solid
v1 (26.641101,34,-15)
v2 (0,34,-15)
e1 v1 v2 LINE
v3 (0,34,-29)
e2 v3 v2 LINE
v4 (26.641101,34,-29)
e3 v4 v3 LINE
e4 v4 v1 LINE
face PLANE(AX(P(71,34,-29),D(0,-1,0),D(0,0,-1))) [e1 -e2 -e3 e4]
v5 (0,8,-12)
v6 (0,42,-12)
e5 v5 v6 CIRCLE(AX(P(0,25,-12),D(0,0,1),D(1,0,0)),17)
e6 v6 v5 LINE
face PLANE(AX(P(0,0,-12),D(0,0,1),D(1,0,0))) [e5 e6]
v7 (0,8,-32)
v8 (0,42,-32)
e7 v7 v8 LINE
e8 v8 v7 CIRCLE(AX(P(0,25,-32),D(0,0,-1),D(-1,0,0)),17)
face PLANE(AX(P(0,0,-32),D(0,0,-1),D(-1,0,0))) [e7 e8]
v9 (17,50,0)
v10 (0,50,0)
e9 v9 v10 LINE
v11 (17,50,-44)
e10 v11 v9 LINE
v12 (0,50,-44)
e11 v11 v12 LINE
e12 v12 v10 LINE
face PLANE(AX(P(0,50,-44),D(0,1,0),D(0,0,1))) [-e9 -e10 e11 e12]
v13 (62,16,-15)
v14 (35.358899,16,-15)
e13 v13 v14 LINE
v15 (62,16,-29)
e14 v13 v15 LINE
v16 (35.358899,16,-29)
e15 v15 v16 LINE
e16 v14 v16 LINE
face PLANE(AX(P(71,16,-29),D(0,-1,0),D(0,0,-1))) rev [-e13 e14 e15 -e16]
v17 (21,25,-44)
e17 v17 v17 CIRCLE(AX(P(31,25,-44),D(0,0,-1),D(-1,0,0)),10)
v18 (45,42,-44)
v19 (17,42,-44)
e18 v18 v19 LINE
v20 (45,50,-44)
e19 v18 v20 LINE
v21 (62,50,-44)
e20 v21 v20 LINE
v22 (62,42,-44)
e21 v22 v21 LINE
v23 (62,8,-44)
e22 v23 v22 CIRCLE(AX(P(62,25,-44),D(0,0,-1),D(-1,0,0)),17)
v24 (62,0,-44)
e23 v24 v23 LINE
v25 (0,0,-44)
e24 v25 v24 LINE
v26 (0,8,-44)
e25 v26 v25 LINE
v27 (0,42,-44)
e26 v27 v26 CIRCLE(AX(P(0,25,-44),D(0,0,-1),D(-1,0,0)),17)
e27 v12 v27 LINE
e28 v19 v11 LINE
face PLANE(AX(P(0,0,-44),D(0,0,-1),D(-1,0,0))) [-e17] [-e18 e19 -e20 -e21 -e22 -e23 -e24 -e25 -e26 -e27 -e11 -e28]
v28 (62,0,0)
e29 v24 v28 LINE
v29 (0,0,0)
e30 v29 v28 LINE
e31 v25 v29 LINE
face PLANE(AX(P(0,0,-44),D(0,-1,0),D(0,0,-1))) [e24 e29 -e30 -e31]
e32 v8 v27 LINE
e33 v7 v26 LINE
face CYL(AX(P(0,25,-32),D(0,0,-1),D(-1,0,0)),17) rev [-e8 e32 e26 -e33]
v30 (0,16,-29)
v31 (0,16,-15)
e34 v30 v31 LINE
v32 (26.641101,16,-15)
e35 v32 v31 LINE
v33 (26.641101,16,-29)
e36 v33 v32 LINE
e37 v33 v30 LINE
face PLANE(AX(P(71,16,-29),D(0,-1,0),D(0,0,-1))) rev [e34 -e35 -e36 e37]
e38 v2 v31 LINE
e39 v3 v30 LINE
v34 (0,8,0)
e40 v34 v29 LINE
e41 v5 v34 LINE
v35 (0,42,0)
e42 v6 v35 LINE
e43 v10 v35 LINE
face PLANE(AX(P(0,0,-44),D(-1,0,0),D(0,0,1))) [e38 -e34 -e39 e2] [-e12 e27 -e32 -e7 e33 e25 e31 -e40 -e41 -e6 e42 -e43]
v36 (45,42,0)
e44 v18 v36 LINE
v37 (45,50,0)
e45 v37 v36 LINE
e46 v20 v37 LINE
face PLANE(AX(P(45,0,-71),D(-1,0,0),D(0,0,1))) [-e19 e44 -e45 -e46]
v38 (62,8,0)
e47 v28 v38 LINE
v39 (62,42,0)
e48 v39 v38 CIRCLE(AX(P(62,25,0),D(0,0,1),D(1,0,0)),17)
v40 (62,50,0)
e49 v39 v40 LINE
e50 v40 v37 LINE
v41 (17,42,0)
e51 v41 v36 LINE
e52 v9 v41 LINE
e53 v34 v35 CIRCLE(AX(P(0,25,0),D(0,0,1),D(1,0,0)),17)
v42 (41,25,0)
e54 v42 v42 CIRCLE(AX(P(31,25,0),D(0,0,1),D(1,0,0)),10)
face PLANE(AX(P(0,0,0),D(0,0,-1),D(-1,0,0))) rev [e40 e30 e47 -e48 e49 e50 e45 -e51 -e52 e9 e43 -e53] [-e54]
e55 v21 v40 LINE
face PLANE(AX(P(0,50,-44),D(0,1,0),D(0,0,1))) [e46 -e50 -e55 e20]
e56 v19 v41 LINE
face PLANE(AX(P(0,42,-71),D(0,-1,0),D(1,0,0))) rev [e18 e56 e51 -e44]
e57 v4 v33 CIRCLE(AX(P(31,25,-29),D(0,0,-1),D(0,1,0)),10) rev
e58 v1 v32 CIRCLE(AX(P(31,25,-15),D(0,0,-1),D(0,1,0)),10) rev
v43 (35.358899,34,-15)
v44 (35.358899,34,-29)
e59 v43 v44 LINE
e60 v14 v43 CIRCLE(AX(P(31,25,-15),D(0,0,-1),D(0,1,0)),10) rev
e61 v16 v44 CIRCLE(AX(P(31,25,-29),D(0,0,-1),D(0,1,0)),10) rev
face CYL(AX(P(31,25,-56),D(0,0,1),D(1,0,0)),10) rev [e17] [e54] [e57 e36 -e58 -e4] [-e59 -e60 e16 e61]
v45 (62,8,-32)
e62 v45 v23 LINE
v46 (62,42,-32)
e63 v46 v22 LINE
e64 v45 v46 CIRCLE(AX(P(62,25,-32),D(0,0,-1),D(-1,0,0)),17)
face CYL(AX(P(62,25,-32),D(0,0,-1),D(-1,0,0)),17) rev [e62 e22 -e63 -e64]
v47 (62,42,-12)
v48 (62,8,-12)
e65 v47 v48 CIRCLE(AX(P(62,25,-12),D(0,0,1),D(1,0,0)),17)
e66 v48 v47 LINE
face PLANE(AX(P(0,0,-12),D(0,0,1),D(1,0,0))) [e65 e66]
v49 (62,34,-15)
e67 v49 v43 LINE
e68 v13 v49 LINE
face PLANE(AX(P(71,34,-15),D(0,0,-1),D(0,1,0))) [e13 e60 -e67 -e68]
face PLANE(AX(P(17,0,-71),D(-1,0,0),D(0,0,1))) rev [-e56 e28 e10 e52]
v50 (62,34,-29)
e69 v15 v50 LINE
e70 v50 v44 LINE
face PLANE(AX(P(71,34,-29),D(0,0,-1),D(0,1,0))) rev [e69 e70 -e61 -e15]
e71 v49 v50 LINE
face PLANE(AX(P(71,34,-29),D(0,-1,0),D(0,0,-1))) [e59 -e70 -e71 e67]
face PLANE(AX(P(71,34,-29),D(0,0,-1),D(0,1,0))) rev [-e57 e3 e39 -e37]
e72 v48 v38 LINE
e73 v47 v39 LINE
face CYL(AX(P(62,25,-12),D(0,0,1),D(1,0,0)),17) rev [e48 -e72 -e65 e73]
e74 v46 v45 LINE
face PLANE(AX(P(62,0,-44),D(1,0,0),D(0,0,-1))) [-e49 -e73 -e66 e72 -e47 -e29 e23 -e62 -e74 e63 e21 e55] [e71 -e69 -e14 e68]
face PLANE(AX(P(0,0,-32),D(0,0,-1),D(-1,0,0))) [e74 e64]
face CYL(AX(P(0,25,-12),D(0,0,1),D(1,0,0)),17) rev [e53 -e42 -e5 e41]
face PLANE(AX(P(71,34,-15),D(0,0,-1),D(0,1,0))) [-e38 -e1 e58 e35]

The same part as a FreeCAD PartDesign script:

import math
import FreeCAD as App
import Part
import Sketcher

doc = App.newDocument("Part")
params = doc.addObject("Spreadsheet::Sheet", "Params")
for row, (alias, value) in enumerate([
    ("sketch1_width", "62 mm"),
    ("sketch1_height", "50 mm"),
    ("pad1_length", "44 mm"),
    ("sketch2_diameter", "20 mm"),
    ("pocket1_length", "56 mm"),
    ("sketch3_radius", "17 mm"),
    ("pocket2_length", "12 mm"),
    ("sketch4_radius", "17 mm"),
    ("pocket3_length", "12 mm"),
    ("sketch5_width", "28 mm"),
    ("sketch5_height", "8 mm"),
    ("pocket4_length", "71 mm"),
    ("sketch6_width", "18 mm"),
    ("sketch6_height", "14 mm"),
    ("pocket5_length", "71 mm"),
], start=1):
    params.set(f"A{row}", alias)
    params.set(f"B{row}", "=" + value)
    params.setAlias(f"B{row}", alias)

body = doc.addObject("PartDesign::Body", "Body")

# Sketch on XY plane
sketch1 = doc.addObject("Sketcher::SketchObject", "Sketch")
body.addObject(sketch1)
sketch1.AttachmentSupport = (doc.XY_Plane, [""])
sketch1.MapMode = "FlatFace"
sketch1.addGeometry([
    Part.LineSegment(App.Vector(0, 50, 0), App.Vector(0, 0, 0)),
    Part.LineSegment(App.Vector(0, 0, 0), App.Vector(62, 0, 0)),
    Part.LineSegment(App.Vector(62, 0, 0), App.Vector(62, 50, 0)),
    Part.LineSegment(App.Vector(62, 50, 0), App.Vector(0, 50, 0)),
], False)
sketch1.addConstraint([
    Sketcher.Constraint("Coincident", 0, 2, 1, 1),
    Sketcher.Constraint("Coincident", 1, 2, 2, 1),
    Sketcher.Constraint("Coincident", 2, 2, 3, 1),
    Sketcher.Constraint("Coincident", 3, 2, 0, 1),
    Sketcher.Constraint("Vertical", 0),
    Sketcher.Constraint("Horizontal", 1),
    Sketcher.Constraint("Vertical", 2),
    Sketcher.Constraint("Horizontal", 3),
    Sketcher.Constraint("Coincident", 0, 2, -1, 1),
    Sketcher.Constraint("DistanceX", 1, 1, 1, 2, 62.0),
    Sketcher.Constraint("DistanceY", 0, 2, 0, 1, 50.0),
])
sketch1.setExpression("Constraints[9]", "Params.sketch1_width")
sketch1.setExpression("Constraints[10]", "Params.sketch1_height")
pad1 = doc.addObject("PartDesign::Pad", "Pad")
body.addObject(pad1)
pad1.Profile = sketch1
pad1.setExpression("Length", "Params.pad1_length")
pad1.Reversed = True

# Sketch on XY plane
sketch2 = doc.addObject("Sketcher::SketchObject", "Sketch001")
body.addObject(sketch2)
sketch2.AttachmentSupport = (doc.XY_Plane, [""])
sketch2.MapMode = "FlatFace"
sketch2.addGeometry(Part.Circle(App.Vector(31, 25, 0), App.Vector(0, 0, 1), 10), False)
sketch2.addConstraint([
    Sketcher.Constraint("Diameter", 0, 20.0),
    Sketcher.Constraint("DistanceX", -1, 1, 0, 3, 31.0),
    Sketcher.Constraint("DistanceY", -1, 1, 0, 3, 25.0),
])
sketch2.setExpression("Constraints[0]", "Params.sketch2_diameter")
pocket1 = doc.addObject("PartDesign::Pocket", "Pocket")
body.addObject(pocket1)
pocket1.Profile = sketch2
pocket1.setExpression("Length", "Params.pocket1_length")

# Sketch on XY plane
sketch3 = doc.addObject("Sketcher::SketchObject", "Sketch002")
body.addObject(sketch3)
sketch3.AttachmentSupport = (doc.XY_Plane, [""])
sketch3.MapMode = "FlatFace"
sketch3.addGeometry([
    Part.ArcOfCircle(Part.Circle(App.Vector(0, 25, 0), App.Vector(0, 0, 1), 17), math.radians(0), math.radians(90)),  # 0
    Part.ArcOfCircle(Part.Circle(App.Vector(0, 25, 0), App.Vector(0, 0, 1), 17), math.radians(90), math.radians(270)),  # 1
    Part.ArcOfCircle(Part.Circle(App.Vector(0, 25, 0), App.Vector(0, 0, 1), 17), math.radians(-90), math.radians(0)),  # 2
    Part.ArcOfCircle(Part.Circle(App.Vector(62, 25, 0), App.Vector(0, 0, 1), 17), math.radians(0), math.radians(90)),  # 3
    Part.ArcOfCircle(Part.Circle(App.Vector(62, 25, 0), App.Vector(0, 0, 1), 17), math.radians(90), math.radians(270)),  # 4
    Part.ArcOfCircle(Part.Circle(App.Vector(62, 25, 0), App.Vector(0, 0, 1), 17), math.radians(-90), math.radians(0)),  # 5
], False)
sketch3.addConstraint([
    Sketcher.Constraint("Tangent", 0, 2, 1, 1),
    Sketcher.Constraint("Tangent", 1, 2, 2, 1),
    Sketcher.Constraint("Tangent", 2, 2, 0, 1),
    Sketcher.Constraint("Tangent", 3, 2, 4, 1),
    Sketcher.Constraint("Tangent", 4, 2, 5, 1),
    Sketcher.Constraint("Tangent", 5, 2, 3, 1),
    Sketcher.Constraint("Equal", 2, 3),
    Sketcher.Constraint("PointOnObject", 0, 3, -2),
    Sketcher.Constraint("PointOnObject", 0, 2, -2),
    Sketcher.Constraint("PointOnObject", 1, 2, -2),
    Sketcher.Constraint("Horizontal", 2, 3, 3, 3),
    Sketcher.Constraint("Horizontal", 5, 3, 2, 2),
    Sketcher.Constraint("Horizontal", 2, 2, 5, 2),
    Sketcher.Constraint("Vertical", 5, 3, 3, 2),
    Sketcher.Constraint("Vertical", 3, 2, 4, 2),
    Sketcher.Constraint("Radius", 0, 17.0),
    Sketcher.Constraint("DistanceY", -1, 1, 0, 3, 25.0),
    Sketcher.Constraint("DistanceX", -1, 1, 3, 3, 62.0),
])
sketch3.setExpression("Constraints[15]", "Params.sketch3_radius")
pocket2 = doc.addObject("PartDesign::Pocket", "Pocket001")
body.addObject(pocket2)
pocket2.Profile = sketch3
pocket2.setExpression("Length", "Params.pocket2_length")

# Sketch on XY plane
sketch4 = doc.addObject("Sketcher::SketchObject", "Sketch003")
body.addObject(sketch4)
sketch4.AttachmentSupport = (doc.XY_Plane, [""])
sketch4.MapMode = "FlatFace"
sketch4.AttachmentOffset = App.Placement(App.Vector(0, 0, -32), App.Rotation())
sketch4.addGeometry([
    Part.ArcOfCircle(Part.Circle(App.Vector(62, 25, 0), App.Vector(0, 0, 1), 17), math.radians(-90), math.radians(90)),  # 0
    Part.ArcOfCircle(Part.Circle(App.Vector(62, 25, 0), App.Vector(0, 0, 1), 17), math.radians(-180), math.radians(-90)),  # 1
    Part.ArcOfCircle(Part.Circle(App.Vector(62, 25, 0), App.Vector(0, 0, 1), 17), math.radians(90), math.radians(180)),  # 2
    Part.ArcOfCircle(Part.Circle(App.Vector(0, 25, 0), App.Vector(0, 0, 1), 17), math.radians(-90), math.radians(90)),  # 3
    Part.ArcOfCircle(Part.Circle(App.Vector(0, 25, 0), App.Vector(0, 0, 1), 17), math.radians(-180), math.radians(-90)),  # 4
    Part.ArcOfCircle(Part.Circle(App.Vector(0, 25, 0), App.Vector(0, 0, 1), 17), math.radians(90), math.radians(180)),  # 5
], False)
sketch4.addConstraint([
    Sketcher.Constraint("Tangent", 0, 1, 1, 2),
    Sketcher.Constraint("Tangent", 1, 1, 2, 2),
    Sketcher.Constraint("Tangent", 2, 1, 0, 2),
    Sketcher.Constraint("Tangent", 3, 1, 4, 2),
    Sketcher.Constraint("Tangent", 4, 1, 5, 2),
    Sketcher.Constraint("Tangent", 5, 1, 3, 2),
    Sketcher.Constraint("Equal", 2, 3),
    Sketcher.Constraint("PointOnObject", 3, 3, -2),
    Sketcher.Constraint("PointOnObject", 3, 1, -2),
    Sketcher.Constraint("PointOnObject", 5, 1, -2),
    Sketcher.Constraint("Horizontal", 2, 3, 3, 3),
    Sketcher.Constraint("Horizontal", 5, 3, 1, 1),
    Sketcher.Constraint("Horizontal", 1, 1, 4, 1),
    Sketcher.Constraint("Vertical", 2, 3, 0, 1),
    Sketcher.Constraint("Vertical", 0, 1, 2, 1),
    Sketcher.Constraint("Radius", 0, 17.0),
    Sketcher.Constraint("DistanceX", -1, 1, 0, 3, 62.0),
    Sketcher.Constraint("DistanceY", -1, 1, 0, 3, 25.0),
])
sketch4.setExpression("Constraints[15]", "Params.sketch4_radius")
pocket3 = doc.addObject("PartDesign::Pocket", "Pocket002")
body.addObject(pocket3)
pocket3.Profile = sketch4
pocket3.setExpression("Length", "Params.pocket3_length")

# Sketch on XY plane
sketch5 = doc.addObject("Sketcher::SketchObject", "Sketch004")
body.addObject(sketch5)
sketch5.AttachmentSupport = (doc.XY_Plane, [""])
sketch5.MapMode = "FlatFace"
sketch5.addGeometry([
    Part.LineSegment(App.Vector(17, 50, 0), App.Vector(17, 42, 0)),
    Part.LineSegment(App.Vector(17, 42, 0), App.Vector(45, 42, 0)),
    Part.LineSegment(App.Vector(45, 42, 0), App.Vector(45, 50, 0)),
    Part.LineSegment(App.Vector(45, 50, 0), App.Vector(17, 50, 0)),
], False)
sketch5.addConstraint([
    Sketcher.Constraint("Coincident", 0, 2, 1, 1),
    Sketcher.Constraint("Coincident", 1, 2, 2, 1),
    Sketcher.Constraint("Coincident", 2, 2, 3, 1),
    Sketcher.Constraint("Coincident", 3, 2, 0, 1),
    Sketcher.Constraint("Vertical", 0),
    Sketcher.Constraint("Horizontal", 1),
    Sketcher.Constraint("Vertical", 2),
    Sketcher.Constraint("Horizontal", 3),
    Sketcher.Constraint("DistanceX", 1, 1, 1, 2, 28.0),
    Sketcher.Constraint("DistanceY", 0, 2, 0, 1, 8.0),
    Sketcher.Constraint("DistanceX", -1, 1, 0, 2, 17.0),
    Sketcher.Constraint("DistanceY", -1, 1, 0, 2, 42.0),
])
sketch5.setExpression("Constraints[8]", "Params.sketch5_width")
sketch5.setExpression("Constraints[9]", "Params.sketch5_height")
pocket4 = doc.addObject("PartDesign::Pocket", "Pocket003")
body.addObject(pocket4)
pocket4.Profile = sketch5
pocket4.setExpression("Length", "Params.pocket4_length")

# Sketch on YZ plane
sketch6 = doc.addObject("Sketcher::SketchObject", "Sketch005")
body.addObject(sketch6)
sketch6.AttachmentSupport = (doc.YZ_Plane, [""])
sketch6.MapMode = "FlatFace"
sketch6.addGeometry([
    Part.LineSegment(App.Vector(34, -29, 0), App.Vector(16, -29, 0)),
    Part.LineSegment(App.Vector(16, -29, 0), App.Vector(16, -15, 0)),
    Part.LineSegment(App.Vector(16, -15, 0), App.Vector(34, -15, 0)),
    Part.LineSegment(App.Vector(34, -15, 0), App.Vector(34, -29, 0)),
], False)
sketch6.addConstraint([
    Sketcher.Constraint("Coincident", 0, 2, 1, 1),
    Sketcher.Constraint("Coincident", 1, 2, 2, 1),
    Sketcher.Constraint("Coincident", 2, 2, 3, 1),
    Sketcher.Constraint("Coincident", 3, 2, 0, 1),
    Sketcher.Constraint("Horizontal", 0),
    Sketcher.Constraint("Vertical", 1),
    Sketcher.Constraint("Horizontal", 2),
    Sketcher.Constraint("Vertical", 3),
    Sketcher.Constraint("DistanceX", 0, 2, 0, 1, 18.0),
    Sketcher.Constraint("DistanceY", 1, 1, 1, 2, 14.0),
    Sketcher.Constraint("DistanceX", -1, 1, 0, 2, 16.0),
    Sketcher.Constraint("DistanceY", 0, 2, -1, 1, 29.0),
])
sketch6.setExpression("Constraints[8]", "Params.sketch6_width")
sketch6.setExpression("Constraints[9]", "Params.sketch6_height")
pocket5 = doc.addObject("PartDesign::Pocket", "Pocket004")
body.addObject(pocket5)
pocket5.Profile = sketch6
pocket5.setExpression("Length", "Params.pocket5_length")
pocket5.Reversed = True

doc.recompute()
